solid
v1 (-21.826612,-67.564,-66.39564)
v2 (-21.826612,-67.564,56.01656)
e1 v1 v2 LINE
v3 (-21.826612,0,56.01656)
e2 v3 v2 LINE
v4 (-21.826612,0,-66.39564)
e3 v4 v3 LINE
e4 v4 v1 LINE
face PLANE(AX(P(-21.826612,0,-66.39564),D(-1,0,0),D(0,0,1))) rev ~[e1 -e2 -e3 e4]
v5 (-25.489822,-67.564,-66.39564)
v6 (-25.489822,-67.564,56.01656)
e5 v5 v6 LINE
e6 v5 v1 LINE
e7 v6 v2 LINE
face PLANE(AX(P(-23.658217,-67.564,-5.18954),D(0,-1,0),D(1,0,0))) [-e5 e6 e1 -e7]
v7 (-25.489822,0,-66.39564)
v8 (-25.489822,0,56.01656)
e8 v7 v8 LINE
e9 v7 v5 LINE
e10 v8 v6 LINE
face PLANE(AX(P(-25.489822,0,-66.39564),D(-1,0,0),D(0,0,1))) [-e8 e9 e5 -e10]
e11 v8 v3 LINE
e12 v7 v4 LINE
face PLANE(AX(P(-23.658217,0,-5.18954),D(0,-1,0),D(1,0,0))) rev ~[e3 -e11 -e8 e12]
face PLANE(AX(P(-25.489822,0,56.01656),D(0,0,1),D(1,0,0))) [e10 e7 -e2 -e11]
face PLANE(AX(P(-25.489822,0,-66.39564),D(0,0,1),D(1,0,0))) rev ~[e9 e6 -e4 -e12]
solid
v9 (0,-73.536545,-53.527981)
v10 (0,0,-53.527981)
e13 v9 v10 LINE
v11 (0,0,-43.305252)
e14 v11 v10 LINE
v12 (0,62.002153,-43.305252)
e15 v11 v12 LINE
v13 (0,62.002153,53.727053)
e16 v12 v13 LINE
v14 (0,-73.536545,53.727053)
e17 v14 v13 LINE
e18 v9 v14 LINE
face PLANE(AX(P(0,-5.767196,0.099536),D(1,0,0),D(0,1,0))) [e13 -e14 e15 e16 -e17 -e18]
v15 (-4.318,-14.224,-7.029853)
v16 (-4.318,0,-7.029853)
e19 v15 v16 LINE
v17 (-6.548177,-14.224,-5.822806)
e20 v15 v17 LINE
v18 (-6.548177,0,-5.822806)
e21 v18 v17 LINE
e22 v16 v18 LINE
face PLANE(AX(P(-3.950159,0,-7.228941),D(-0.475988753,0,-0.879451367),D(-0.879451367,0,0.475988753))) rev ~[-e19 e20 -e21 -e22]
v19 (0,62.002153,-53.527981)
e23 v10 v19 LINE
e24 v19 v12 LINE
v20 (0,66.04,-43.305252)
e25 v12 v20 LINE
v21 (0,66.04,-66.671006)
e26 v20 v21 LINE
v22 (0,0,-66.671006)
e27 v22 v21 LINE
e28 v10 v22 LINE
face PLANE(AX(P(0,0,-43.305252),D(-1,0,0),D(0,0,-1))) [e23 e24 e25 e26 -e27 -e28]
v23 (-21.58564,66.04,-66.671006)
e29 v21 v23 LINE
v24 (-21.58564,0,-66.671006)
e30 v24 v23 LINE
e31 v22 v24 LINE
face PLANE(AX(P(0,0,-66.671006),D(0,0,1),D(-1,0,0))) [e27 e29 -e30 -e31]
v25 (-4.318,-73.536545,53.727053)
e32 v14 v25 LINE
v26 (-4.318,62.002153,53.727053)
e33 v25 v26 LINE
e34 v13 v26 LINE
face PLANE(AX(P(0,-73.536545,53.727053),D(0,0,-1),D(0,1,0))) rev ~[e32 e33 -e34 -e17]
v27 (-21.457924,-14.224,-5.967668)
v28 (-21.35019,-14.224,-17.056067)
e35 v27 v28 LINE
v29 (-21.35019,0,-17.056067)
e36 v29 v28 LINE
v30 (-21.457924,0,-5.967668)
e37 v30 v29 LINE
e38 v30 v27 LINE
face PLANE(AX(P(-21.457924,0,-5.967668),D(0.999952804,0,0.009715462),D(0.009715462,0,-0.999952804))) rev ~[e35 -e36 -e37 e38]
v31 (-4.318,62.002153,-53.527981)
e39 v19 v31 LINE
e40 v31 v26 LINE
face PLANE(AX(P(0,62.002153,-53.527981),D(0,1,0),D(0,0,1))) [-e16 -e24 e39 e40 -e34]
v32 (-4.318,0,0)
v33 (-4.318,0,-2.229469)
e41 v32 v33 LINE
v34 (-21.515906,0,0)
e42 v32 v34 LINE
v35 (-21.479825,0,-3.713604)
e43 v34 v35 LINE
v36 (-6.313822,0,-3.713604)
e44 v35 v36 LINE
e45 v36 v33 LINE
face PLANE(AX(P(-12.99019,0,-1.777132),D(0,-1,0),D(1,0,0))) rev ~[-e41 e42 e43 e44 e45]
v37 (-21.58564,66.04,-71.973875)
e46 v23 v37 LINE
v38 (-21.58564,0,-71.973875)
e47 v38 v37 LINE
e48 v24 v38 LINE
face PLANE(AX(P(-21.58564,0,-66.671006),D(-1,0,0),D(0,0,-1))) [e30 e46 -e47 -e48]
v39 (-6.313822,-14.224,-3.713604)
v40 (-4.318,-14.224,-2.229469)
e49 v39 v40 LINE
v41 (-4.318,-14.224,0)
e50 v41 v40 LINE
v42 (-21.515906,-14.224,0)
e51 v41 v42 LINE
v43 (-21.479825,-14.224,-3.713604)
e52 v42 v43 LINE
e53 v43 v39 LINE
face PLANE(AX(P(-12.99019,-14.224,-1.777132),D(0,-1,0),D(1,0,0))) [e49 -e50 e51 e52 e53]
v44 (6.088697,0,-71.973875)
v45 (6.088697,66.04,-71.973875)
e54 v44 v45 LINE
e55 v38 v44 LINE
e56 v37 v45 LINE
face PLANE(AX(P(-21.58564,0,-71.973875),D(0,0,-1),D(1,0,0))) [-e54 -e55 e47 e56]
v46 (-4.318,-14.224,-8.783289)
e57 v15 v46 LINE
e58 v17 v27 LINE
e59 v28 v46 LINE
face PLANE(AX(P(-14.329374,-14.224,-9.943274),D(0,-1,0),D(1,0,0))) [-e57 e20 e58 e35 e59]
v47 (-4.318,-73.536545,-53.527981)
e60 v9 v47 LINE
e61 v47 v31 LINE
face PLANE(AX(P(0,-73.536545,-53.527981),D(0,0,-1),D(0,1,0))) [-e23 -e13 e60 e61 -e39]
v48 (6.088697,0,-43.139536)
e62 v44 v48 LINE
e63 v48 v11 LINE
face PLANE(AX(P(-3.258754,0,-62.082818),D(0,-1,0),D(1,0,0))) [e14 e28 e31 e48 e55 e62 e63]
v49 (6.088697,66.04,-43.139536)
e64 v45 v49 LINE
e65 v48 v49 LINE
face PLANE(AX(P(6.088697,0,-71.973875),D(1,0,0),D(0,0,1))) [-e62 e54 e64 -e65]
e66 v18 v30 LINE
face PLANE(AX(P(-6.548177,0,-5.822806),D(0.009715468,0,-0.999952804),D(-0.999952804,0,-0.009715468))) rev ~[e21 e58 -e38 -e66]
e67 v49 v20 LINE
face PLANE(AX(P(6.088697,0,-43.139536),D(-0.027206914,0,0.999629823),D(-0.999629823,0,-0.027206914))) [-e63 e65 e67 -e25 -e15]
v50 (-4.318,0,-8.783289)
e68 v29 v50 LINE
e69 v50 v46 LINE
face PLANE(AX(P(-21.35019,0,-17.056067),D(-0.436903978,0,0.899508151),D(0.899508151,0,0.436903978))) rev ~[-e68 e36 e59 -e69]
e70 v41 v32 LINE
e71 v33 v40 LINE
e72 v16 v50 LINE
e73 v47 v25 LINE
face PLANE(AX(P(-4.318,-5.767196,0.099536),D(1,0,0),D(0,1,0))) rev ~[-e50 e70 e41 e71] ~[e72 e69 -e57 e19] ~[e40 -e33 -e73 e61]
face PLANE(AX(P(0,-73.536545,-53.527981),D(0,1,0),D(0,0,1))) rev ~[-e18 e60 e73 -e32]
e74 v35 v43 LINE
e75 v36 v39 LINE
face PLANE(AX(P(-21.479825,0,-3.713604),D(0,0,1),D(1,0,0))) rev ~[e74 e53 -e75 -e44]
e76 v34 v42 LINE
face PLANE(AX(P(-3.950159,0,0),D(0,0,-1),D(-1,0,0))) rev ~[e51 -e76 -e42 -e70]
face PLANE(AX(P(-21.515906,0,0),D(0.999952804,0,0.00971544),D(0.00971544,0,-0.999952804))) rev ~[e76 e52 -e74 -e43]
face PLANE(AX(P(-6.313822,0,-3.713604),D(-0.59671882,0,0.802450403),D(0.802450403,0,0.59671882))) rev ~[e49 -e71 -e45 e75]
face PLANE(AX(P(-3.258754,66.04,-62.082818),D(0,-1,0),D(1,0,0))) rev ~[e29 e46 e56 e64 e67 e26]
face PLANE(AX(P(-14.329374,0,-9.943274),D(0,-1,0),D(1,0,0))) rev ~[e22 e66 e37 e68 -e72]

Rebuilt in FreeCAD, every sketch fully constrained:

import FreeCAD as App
import Part
import Sketcher

V = App.Vector
Q = App.Units.Quantity

doc = App.newDocument("Part")
body = doc.addObject("PartDesign::Body", "Body")

sketch1 = doc.addObject("Sketcher::SketchObject", "Sketch")
body.addObject(sketch1)
sketch1.AttachmentSupport = (doc.YZ_Plane, [""])
sketch1.MapMode = "FlatFace"
sketch1.addGeometry(Part.LineSegment(V(-74, 54, 0), V(-74, -54, 0)), False)
sketch1.addGeometry(Part.LineSegment(V(-74, -54, 0), V(62, -54, 0)), False)
sketch1.addGeometry(Part.LineSegment(V(62, -54, 0), V(62, 54, 0)), False)
sketch1.addGeometry(Part.LineSegment(V(62, 54, 0), V(-74, 54, 0)), False)
sketch1.addConstraint(Sketcher.Constraint("Coincident", 0, 2, 1, 1))
sketch1.addConstraint(Sketcher.Constraint("Coincident", 1, 2, 2, 1))
sketch1.addConstraint(Sketcher.Constraint("Coincident", 2, 2, 3, 1))
sketch1.addConstraint(Sketcher.Constraint("Coincident", 3, 2, 0, 1))
sketch1.addConstraint(Sketcher.Constraint("Vertical", 0))
sketch1.addConstraint(Sketcher.Constraint("Horizontal", 1))
sketch1.addConstraint(Sketcher.Constraint("Vertical", 2))
sketch1.addConstraint(Sketcher.Constraint("Horizontal", 3))
sketch1.addConstraint(Sketcher.Constraint("DistanceX", 1, 1, 1, 2, Q("135.538697 mm")))
sketch1.addConstraint(Sketcher.Constraint("DistanceY", 0, 2, 0, 1, Q("107.255034 mm")))
sketch1.addConstraint(Sketcher.Constraint("DistanceY", 0, 2, -1, 1, Q("53.527981 mm")))
sketch1.addConstraint(Sketcher.Constraint("DistanceX", 0, 2, -1, 1, Q("73.536545 mm")))
pad1 = doc.addObject("PartDesign::Pad", "Pad")
body.addObject(pad1)
pad1.Profile = sketch1
pad1.Length = Q("0.17 in")
pad1.Reversed = True

sketch2 = doc.addObject("Sketcher::SketchObject", "Sketch001")
body.addObject(sketch2)
sketch2.AttachmentSupport = (doc.XZ_Plane, [""])
sketch2.MapMode = "FlatFace"
sketch2.addGeometry(Part.LineSegment(V(6.088697, -43.139536, 0), V(0, -43.305252, 0)), False)
sketch2.addGeometry(Part.LineSegment(V(0, -43.305252, 0), V(0, -66.671006, 0)), False)
sketch2.addGeometry(Part.LineSegment(V(0, -66.671006, 0), V(-21.58564, -66.671006, 0)), False)
sketch2.addGeometry(Part.LineSegment(V(-21.58564, -66.671006, 0), V(-21.58564, -71.973875, 0)), False)
sketch2.addGeometry(Part.LineSegment(V(-21.58564, -71.973875, 0), V(6.088697, -71.973875, 0)), False)
sketch2.addGeometry(Part.LineSegment(V(6.088697, -71.973875, 0), V(6.088697, -43.139536, 0)), False)
sketch2.addConstraint(Sketcher.Constraint("Coincident", 0, 2, 1, 1))
sketch2.addConstraint(Sketcher.Constraint("Coincident", 1, 2, 2, 1))
sketch2.addConstraint(Sketcher.Constraint("Coincident", 2, 2, 3, 1))
sketch2.addConstraint(Sketcher.Constraint("Coincident", 3, 2, 4, 1))
sketch2.addConstraint(Sketcher.Constraint("Coincident", 4, 2, 5, 1))
sketch2.addConstraint(Sketcher.Constraint("Coincident", 5, 2, 0, 1))
sketch2.addConstraint(Sketcher.Constraint("Vertical", 1))
sketch2.addConstraint(Sketcher.Constraint("Horizontal", 2))
sketch2.addConstraint(Sketcher.Constraint("Vertical", 3))
sketch2.addConstraint(Sketcher.Constraint("Horizontal", 4))
sketch2.addConstraint(Sketcher.Constraint("Vertical", 5))
sketch2.addConstraint(Sketcher.Constraint("PointOnObject", 0, 2, -2))
sketch2.addConstraint(Sketcher.Constraint("DistanceX", 2, 2, 2, 1, Q("21.58564 mm")))
sketch2.addConstraint(Sketcher.Constraint("DistanceY", 3, 2, 3, 1, Q("5.302869 mm")))
sketch2.addConstraint(Sketcher.Constraint("DistanceY", 5, 1, 5, 2, Q("28.834339 mm")))
sketch2.addConstraint(Sketcher.Constraint("Distance", 0, Q("6.090952 mm")))
sketch2.addConstraint(Sketcher.Constraint("DistanceX", 4, 1, 4, 2, Q("27.674337 mm")))
sketch2.addConstraint(Sketcher.Constraint("DistanceY", 0, 2, -1, 1, Q("43.305252 mm")))
pad2 = doc.addObject("PartDesign::Pad", "Pad001")
body.addObject(pad2)
pad2.Profile = sketch2
pad2.Length = Q("2.6 in")
pad2.Reversed = True

sketch3 = doc.addObject("Sketcher::SketchObject", "Sketch002")
body.addObject(sketch3)
sketch3.AttachmentSupport = (doc.XZ_Plane, [""])
sketch3.MapMode = "FlatFace"
sketch3.addGeometry(Part.LineSegment(V(-4, 0, 0), V(-21.5, 0, 0)), False)
sketch3.addGeometry(Part.LineSegment(V(-21.5, 0, 0), V(-21.5, -3.7, 0)), False)
sketch3.addGeometry(Part.LineSegment(V(-21.5, -3.7, 0), V(-6.3, -3.7, 0)), False)
sketch3.addGeometry(Part.LineSegment(V(-6.3, -3.7, 0), V(-4, -2, 0)), False)
sketch3.addGeometry(Part.LineSegment(V(-4, -2, 0), V(-4, 0, 0)), False)
sketch3.addGeometry(Part.LineSegment(V(-6.5, -5.8, 0), V(-21.5, -6, 0)), False)
sketch3.addGeometry(Part.LineSegment(V(-21.5, -6, 0), V(-21.4, -17.1, 0)), False)
sketch3.addGeometry(Part.LineSegment(V(-21.4, -17.1, 0), V(-4, -8.6, 0)), False)
sketch3.addGeometry(Part.LineSegment(V(-4, -8.6, 0), V(-4, -7.2, 0)), False)
sketch3.addGeometry(Part.LineSegment(V(-4, -7.2, 0), V(-6.5, -5.8, 0)), False)
sketch3.addConstraint(Sketcher.Constraint("Coincident", 0, 2, 1, 1))
sketch3.addConstraint(Sketcher.Constraint("Coincident", 1, 2, 2, 1))
sketch3.addConstraint(Sketcher.Constraint("Coincident", 2, 2, 3, 1))
sketch3.addConstraint(Sketcher.Constraint("Coincident", 3, 2, 4, 1))
sketch3.addConstraint(Sketcher.Constraint("Coincident", 4, 2, 0, 1))
sketch3.addConstraint(Sketcher.Constraint("Coincident", 5, 2, 6, 1))
sketch3.addConstraint(Sketcher.Constraint("Coincident", 6, 2, 7, 1))
sketch3.addConstraint(Sketcher.Constraint("Coincident", 7, 2, 8, 1))
sketch3.addConstraint(Sketcher.Constraint("Coincident", 8, 2, 9, 1))
sketch3.addConstraint(Sketcher.Constraint("Coincident", 9, 2, 5, 1))
sketch3.addConstraint(Sketcher.Constraint("Horizontal", 0))
sketch3.addConstraint(Sketcher.Constraint("Horizontal", 2))
sketch3.addConstraint(Sketcher.Constraint("Vertical", 4))
sketch3.addConstraint(Sketcher.Constraint("Vertical", 8))
sketch3.addConstraint(Sketcher.Constraint("PointOnObject", 0, 2, -1))
sketch3.addConstraint(Sketcher.Constraint("Perpendicular", 1, 5))
sketch3.addConstraint(Sketcher.Constraint("Perpendicular", 5, 6))
sketch3.addConstraint(Sketcher.Constraint("Vertical", 4, 2, 7, 2))
sketch3.addConstraint(Sketcher.Constraint("DistanceX", 5, 2, -1, 1, Q("0.8448002 in")))
sketch3.addConstraint(Sketcher.Constraint("DistanceX", 1, 2, 5, 2, Q("0.021901 mm")))
sketch3.addConstraint(Sketcher.Constraint("DistanceX", 5, 2, 2, 2, Q("15.144102 mm")))
sketch3.addConstraint(Sketcher.Constraint("DistanceY", 6, 2, 5, 2, Q("11.088399 mm")))
sketch3.addConstraint(Sketcher.Constraint("DistanceY", 9, 2, 2, 2, Q("2.109202 mm")))
sketch3.addConstraint(Sketcher.Constraint("Distance", 1, Q("3.713779 mm")))
sketch3.addConstraint(Sketcher.Constraint("Distance", 5, Q("14.910451 mm")))
sketch3.addConstraint(Sketcher.Constraint("Distance", 7, Q("19.343939 mm")))
sketch3.addConstraint(Sketcher.Constraint("DistanceX", 0, 2, 0, 1, Q("17.565747 mm")))
sketch3.addConstraint(Sketcher.Constraint("DistanceY", 4, 1, 4, 2, Q("1.955935 mm")))
sketch3.addConstraint(Sketcher.Constraint("DistanceY", 8, 1, 8, 2, Q("1.375682 mm")))
sketch3.addConstraint(Sketcher.Constraint("DistanceX", 3, 2, -1, 1, Q("3.950159 mm")))
pad3 = doc.addObject("PartDesign::Pad", "Pad002")
body.addObject(pad3)
pad3.Profile = sketch3
pad3.Length = Q("0.56 in")
body2 = doc.addObject("PartDesign::Body", "Body001")

sketch4 = doc.addObject("Sketcher::SketchObject", "Sketch003")
body2.addObject(sketch4)
sketch4.AttachmentSupport = (doc.getObject("XZ_Plane001"), [""])
sketch4.MapMode = "FlatFace"
sketch4.addGeometry(Part.LineSegment(V(-25.5, 56, 0), V(-25.5, -66.4, 0)), False)
sketch4.addGeometry(Part.LineSegment(V(-25.5, -66.4, 0), V(-21.8, -66.4, 0)), False)
sketch4.addGeometry(Part.LineSegment(V(-21.8, -66.4, 0), V(-21.8, 56, 0)), False)
sketch4.addGeometry(Part.LineSegment(V(-21.8, 56, 0), V(-25.5, 56, 0)), False)
sketch4.addConstraint(Sketcher.Constraint("Coincident", 0, 2, 1, 1))
sketch4.addConstraint(Sketcher.Constraint("Coincident", 1, 2, 2, 1))
sketch4.addConstraint(Sketcher.Constraint("Coincident", 2, 2, 3, 1))
sketch4.addConstraint(Sketcher.Constraint("Coincident", 3, 2, 0, 1))
sketch4.addConstraint(Sketcher.Constraint("Vertical", 0))
sketch4.addConstraint(Sketcher.Constraint("Horizontal", 1))
sketch4.addConstraint(Sketcher.Constraint("Vertical", 2))
sketch4.addConstraint(Sketcher.Constraint("Horizontal", 3))
sketch4.addConstraint(Sketcher.Constraint("DistanceY", 0, 2, 0, 1, Q("122.412201 mm")))
sketch4.addConstraint(Sketcher.Constraint("DistanceX", 1, 1, 1, 2, Q("3.66321 mm")))
sketch4.addConstraint(Sketcher.Constraint("DistanceX", 0, 2, -1, 1, Q("25.489822 mm")))
sketch4.addConstraint(Sketcher.Constraint("DistanceY", 0, 2, -1, 1, Q("66.39564 mm")))
pad4 = doc.addObject("PartDesign::Pad", "Pad003")
body2.addObject(pad4)
pad4.Profile = sketch4
pad4.Length = Q("2.66 in")

doc.recompute()
